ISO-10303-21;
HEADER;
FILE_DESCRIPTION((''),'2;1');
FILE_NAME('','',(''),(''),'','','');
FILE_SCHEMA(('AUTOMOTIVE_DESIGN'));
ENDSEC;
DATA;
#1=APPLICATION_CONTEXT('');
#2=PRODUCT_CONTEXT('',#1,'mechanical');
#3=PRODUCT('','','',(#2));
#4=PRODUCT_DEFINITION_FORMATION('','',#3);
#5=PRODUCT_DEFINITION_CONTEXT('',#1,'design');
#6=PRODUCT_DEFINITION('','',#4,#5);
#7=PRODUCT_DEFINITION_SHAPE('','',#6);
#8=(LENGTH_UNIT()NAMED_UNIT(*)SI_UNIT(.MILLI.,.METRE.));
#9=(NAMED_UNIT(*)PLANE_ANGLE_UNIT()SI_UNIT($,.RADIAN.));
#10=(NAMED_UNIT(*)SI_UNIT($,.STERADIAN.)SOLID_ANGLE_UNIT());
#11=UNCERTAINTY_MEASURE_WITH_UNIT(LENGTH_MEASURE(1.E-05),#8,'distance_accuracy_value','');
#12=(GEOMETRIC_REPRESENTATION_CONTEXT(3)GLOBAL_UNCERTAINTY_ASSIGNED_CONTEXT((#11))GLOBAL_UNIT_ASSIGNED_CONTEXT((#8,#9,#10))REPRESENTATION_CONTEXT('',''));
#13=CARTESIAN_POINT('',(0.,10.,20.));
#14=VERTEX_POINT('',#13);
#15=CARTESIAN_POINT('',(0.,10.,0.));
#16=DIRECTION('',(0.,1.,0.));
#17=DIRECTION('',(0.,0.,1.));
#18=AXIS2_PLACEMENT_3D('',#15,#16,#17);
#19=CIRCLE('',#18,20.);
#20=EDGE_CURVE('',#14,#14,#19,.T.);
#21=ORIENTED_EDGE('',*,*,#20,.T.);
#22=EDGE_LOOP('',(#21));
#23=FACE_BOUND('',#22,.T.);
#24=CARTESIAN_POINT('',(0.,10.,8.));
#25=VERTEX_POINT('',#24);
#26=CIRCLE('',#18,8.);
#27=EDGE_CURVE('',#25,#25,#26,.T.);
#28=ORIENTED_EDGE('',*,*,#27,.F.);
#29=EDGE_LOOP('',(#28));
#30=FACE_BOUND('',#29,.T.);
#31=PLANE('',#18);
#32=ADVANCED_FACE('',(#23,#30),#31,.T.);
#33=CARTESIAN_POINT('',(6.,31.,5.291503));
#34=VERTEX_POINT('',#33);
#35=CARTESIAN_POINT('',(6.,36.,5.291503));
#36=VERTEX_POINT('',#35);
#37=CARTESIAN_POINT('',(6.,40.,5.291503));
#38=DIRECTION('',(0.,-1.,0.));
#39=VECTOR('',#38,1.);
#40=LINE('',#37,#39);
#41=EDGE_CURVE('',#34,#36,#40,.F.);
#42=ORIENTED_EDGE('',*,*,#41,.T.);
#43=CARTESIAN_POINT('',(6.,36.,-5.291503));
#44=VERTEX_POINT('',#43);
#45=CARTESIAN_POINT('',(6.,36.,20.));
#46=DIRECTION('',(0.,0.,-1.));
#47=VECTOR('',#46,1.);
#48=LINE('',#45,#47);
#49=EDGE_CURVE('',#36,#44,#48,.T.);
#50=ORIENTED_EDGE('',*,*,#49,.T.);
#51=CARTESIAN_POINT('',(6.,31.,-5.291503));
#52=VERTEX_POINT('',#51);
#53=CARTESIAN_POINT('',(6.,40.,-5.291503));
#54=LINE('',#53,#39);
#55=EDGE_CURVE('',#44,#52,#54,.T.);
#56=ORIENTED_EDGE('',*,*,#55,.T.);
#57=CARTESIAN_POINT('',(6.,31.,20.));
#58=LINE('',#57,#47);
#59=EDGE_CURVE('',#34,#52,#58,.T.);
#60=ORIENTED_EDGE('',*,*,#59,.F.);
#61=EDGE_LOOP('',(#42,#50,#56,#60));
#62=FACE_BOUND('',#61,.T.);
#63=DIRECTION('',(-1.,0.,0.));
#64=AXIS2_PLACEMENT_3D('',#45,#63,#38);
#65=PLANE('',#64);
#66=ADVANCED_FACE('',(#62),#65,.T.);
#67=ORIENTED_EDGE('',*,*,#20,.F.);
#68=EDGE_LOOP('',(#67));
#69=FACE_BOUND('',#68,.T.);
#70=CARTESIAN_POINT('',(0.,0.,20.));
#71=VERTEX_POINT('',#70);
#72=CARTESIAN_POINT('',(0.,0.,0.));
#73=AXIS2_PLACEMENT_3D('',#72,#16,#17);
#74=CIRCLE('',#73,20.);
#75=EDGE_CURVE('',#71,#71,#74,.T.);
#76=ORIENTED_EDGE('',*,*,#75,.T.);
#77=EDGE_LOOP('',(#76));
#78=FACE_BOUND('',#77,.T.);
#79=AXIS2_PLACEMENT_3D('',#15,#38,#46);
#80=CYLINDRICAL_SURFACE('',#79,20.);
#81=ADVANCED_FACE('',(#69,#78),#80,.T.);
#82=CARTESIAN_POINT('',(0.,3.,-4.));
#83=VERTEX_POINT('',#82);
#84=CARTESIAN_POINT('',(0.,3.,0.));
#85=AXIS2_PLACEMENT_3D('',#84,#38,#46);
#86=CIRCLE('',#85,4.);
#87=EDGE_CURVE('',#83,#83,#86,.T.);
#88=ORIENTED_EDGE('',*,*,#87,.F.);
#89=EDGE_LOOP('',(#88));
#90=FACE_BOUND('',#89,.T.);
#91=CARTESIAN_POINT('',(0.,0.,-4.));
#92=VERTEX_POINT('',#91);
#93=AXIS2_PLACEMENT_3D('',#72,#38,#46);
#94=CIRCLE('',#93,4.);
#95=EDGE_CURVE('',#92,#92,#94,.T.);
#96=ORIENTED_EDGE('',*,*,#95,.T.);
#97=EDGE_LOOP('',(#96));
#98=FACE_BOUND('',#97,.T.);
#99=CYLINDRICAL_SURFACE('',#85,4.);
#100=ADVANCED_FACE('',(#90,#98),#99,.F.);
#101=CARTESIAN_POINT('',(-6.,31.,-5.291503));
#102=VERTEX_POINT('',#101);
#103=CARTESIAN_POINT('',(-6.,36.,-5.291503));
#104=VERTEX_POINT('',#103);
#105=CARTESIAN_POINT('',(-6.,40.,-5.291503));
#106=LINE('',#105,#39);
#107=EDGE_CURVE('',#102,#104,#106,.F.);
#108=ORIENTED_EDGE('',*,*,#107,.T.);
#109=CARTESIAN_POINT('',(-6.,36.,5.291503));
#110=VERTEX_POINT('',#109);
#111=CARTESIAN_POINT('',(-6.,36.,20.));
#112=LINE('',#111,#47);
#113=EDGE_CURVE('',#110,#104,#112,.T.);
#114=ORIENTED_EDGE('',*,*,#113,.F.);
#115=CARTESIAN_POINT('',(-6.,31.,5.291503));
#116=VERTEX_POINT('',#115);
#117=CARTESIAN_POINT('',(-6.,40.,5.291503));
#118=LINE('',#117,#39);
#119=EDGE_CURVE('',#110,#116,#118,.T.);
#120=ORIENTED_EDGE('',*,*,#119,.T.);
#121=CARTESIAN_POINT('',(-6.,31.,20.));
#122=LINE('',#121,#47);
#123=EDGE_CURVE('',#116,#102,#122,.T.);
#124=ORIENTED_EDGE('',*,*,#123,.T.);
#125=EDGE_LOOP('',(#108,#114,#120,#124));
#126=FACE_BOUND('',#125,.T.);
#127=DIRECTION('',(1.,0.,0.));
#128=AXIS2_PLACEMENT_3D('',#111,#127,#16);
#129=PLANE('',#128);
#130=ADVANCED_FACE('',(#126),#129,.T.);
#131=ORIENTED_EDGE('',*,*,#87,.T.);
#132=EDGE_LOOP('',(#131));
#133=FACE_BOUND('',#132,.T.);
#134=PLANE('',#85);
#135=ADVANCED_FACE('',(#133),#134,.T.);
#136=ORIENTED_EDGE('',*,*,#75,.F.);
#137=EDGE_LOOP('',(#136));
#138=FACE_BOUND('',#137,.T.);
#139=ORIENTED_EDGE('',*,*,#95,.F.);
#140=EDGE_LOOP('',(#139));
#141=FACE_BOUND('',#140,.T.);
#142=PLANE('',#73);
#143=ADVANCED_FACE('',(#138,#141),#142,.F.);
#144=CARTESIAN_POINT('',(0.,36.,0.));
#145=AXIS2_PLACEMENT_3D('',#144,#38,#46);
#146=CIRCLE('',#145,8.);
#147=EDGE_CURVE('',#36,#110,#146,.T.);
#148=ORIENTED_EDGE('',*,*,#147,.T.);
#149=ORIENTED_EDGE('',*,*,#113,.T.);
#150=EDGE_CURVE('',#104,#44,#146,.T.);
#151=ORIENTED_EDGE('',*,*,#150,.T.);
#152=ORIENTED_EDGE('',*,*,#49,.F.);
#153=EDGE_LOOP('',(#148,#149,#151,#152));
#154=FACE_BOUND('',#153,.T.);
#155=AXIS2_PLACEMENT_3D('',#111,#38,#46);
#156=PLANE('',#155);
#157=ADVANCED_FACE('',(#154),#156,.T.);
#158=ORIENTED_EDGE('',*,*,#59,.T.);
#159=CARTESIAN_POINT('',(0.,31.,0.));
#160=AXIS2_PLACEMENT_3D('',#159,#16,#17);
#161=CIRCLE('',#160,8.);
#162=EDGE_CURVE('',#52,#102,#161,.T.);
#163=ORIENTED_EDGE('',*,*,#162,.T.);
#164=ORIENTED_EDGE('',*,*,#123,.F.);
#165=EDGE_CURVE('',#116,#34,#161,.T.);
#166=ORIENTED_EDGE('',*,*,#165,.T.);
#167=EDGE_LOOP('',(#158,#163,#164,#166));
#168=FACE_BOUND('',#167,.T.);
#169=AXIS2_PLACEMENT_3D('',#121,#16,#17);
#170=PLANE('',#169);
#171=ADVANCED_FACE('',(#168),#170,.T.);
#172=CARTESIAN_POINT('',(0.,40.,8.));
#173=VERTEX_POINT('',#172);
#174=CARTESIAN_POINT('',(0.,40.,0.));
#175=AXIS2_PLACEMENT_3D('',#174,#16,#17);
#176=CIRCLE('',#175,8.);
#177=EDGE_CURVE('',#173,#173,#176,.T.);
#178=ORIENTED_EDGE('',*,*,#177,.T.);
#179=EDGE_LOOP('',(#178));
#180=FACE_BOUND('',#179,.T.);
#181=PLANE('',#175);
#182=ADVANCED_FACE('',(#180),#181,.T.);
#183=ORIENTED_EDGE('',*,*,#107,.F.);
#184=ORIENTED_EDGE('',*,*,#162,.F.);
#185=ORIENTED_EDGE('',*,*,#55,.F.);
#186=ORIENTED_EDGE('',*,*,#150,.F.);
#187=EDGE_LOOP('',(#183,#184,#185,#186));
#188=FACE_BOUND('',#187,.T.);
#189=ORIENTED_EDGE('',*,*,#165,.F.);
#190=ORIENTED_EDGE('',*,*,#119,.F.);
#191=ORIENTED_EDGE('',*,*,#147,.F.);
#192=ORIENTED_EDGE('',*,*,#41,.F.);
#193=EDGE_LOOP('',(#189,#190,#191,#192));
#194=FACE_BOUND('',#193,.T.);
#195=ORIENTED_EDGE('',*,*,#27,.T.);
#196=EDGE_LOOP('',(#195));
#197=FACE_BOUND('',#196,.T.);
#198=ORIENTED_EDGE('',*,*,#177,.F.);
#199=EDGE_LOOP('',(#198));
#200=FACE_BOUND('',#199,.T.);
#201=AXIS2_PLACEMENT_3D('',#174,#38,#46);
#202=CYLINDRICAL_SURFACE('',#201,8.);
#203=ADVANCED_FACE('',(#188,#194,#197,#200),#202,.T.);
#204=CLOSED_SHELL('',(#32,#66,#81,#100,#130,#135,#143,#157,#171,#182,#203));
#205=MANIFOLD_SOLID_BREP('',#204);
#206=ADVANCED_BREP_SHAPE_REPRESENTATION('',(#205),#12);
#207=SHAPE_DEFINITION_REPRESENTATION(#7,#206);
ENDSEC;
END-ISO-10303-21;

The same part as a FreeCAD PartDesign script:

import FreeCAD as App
import Part
import Sketcher
from FreeCAD import Vector


def add_polygon(sketch, points):
    """Adds a closed chain of lines whose ends are joined by coincident constraints."""
    first, n = sketch.GeometryCount, len(points)
    for a, b in zip(points, points[1:] + points[:1]):
        sketch.addGeometry(Part.LineSegment(App.Vector(*a, 0), App.Vector(*b, 0)), False)
    for i in range(n):
        sketch.addConstraint(Sketcher.Constraint("Coincident", first + i, 2, first + (i + 1) % n, 1))

doc = App.newDocument("Part")
params = doc.addObject("Spreadsheet::Sheet", "Params")
for row, (alias, value) in enumerate([
    ("sketch1_diameter", "40 mm"),
    ("pad1_length", "10 mm"),
    ("sketch2_diameter", "16 mm"),
    ("pad2_length", "30 mm"),
    ("sketch3_width", "12 mm"),
    ("sketch3_height", "5 mm"),
    ("sketch4_diameter", "8 mm"),
    ("pocket2_length", "3 mm"),
], start=1):
    params.set(f"A{row}", alias)
    params.set(f"B{row}", "=" + value)
    params.setAlias(f"B{row}", alias)

body = doc.addObject("PartDesign::Body", "Body")

# Sketch on XZ plane
sketch1 = doc.addObject("Sketcher::SketchObject", "Sketch")
body.addObject(sketch1)
sketch1.AttachmentSupport = (doc.XZ_Plane, [""])
sketch1.MapMode = "FlatFace"
sketch1.addGeometry(Part.Circle(Vector(0, 0, 0), Vector(0, 0, 1), 20), False)
sketch1.addConstraint(Sketcher.Constraint("Coincident", 0, 3, -1, 1))
sketch1.addConstraint(Sketcher.Constraint("Diameter", 0, 40.0))
sketch1.setExpression("Constraints[1]", "Params.sketch1_diameter")
pad1 = doc.addObject("PartDesign::Pad", "Pad")
body.addObject(pad1)
pad1.Profile = sketch1
pad1.setExpression("Length", "Params.pad1_length")
pad1.Reversed = True

# Sketch on XZ plane
sketch2 = doc.addObject("Sketcher::SketchObject", "Sketch001")
body.addObject(sketch2)
sketch2.AttachmentSupport = (doc.XZ_Plane, [""])
sketch2.MapMode = "FlatFace"
sketch2.AttachmentOffset = App.Placement(Vector(0, 0, -10), App.Rotation())
sketch2.addGeometry(Part.Circle(Vector(0, 0, 0), Vector(0, 0, 1), 8), False)
sketch2.addConstraint(Sketcher.Constraint("Coincident", 0, 3, -1, 1))
sketch2.addConstraint(Sketcher.Constraint("Diameter", 0, 16.0))
sketch2.setExpression("Constraints[1]", "Params.sketch2_diameter")
pad2 = doc.addObject("PartDesign::Pad", "Pad001")
body.addObject(pad2)
pad2.Profile = sketch2
pad2.setExpression("Length", "Params.pad2_length")
pad2.Reversed = True

# Sketch on XY plane
sketch3 = doc.addObject("Sketcher::SketchObject", "Sketch002")
body.addObject(sketch3)
sketch3.AttachmentSupport = (doc.XY_Plane, [""])
sketch3.MapMode = "FlatFace"
add_polygon(sketch3, [(-6, 36), (-6, 31), (6, 31), (6, 36)])  # lines 0-3
sketch3.addConstraint(Sketcher.Constraint("Vertical", 0))
sketch3.addConstraint(Sketcher.Constraint("Horizontal", 1))
sketch3.addConstraint(Sketcher.Constraint("Vertical", 2))
sketch3.addConstraint(Sketcher.Constraint("Horizontal", 3))
sketch3.addConstraint(Sketcher.Constraint("DistanceX", 1, 1, 1, 2, 12.0))
sketch3.addConstraint(Sketcher.Constraint("DistanceY", 0, 2, 0, 1, 5.0))
sketch3.addConstraint(Sketcher.Constraint("DistanceX", 0, 2, -1, 1, 6.0))
sketch3.addConstraint(Sketcher.Constraint("DistanceY", -1, 1, 0, 2, 31.0))
sketch3.setExpression("Constraints[8]", "Params.sketch3_width")
sketch3.setExpression("Constraints[9]", "Params.sketch3_height")
pocket1 = doc.addObject("PartDesign::Pocket", "Pocket")
body.addObject(pocket1)
pocket1.Profile = sketch3
pocket1.Type = "ThroughAll"
pocket1.Midplane = True

# Sketch on XZ plane
sketch4 = doc.addObject("Sketcher::SketchObject", "Sketch003")
body.addObject(sketch4)
sketch4.AttachmentSupport = (doc.XZ_Plane, [""])
sketch4.MapMode = "FlatFace"
sketch4.addGeometry(Part.Circle(Vector(0, 0, 0), Vector(0, 0, 1), 4), False)
sketch4.addConstraint(Sketcher.Constraint("Coincident", 0, 3, -1, 1))
sketch4.addConstraint(Sketcher.Constraint("Diameter", 0, 8.0))
sketch4.setExpression("Constraints[1]", "Params.sketch4_diameter")
pocket2 = doc.addObject("PartDesign::Pocket", "Pocket001")
body.addObject(pocket2)
pocket2.Profile = sketch4
pocket2.setExpression("Length", "Params.pocket2_length")

doc.recompute()
